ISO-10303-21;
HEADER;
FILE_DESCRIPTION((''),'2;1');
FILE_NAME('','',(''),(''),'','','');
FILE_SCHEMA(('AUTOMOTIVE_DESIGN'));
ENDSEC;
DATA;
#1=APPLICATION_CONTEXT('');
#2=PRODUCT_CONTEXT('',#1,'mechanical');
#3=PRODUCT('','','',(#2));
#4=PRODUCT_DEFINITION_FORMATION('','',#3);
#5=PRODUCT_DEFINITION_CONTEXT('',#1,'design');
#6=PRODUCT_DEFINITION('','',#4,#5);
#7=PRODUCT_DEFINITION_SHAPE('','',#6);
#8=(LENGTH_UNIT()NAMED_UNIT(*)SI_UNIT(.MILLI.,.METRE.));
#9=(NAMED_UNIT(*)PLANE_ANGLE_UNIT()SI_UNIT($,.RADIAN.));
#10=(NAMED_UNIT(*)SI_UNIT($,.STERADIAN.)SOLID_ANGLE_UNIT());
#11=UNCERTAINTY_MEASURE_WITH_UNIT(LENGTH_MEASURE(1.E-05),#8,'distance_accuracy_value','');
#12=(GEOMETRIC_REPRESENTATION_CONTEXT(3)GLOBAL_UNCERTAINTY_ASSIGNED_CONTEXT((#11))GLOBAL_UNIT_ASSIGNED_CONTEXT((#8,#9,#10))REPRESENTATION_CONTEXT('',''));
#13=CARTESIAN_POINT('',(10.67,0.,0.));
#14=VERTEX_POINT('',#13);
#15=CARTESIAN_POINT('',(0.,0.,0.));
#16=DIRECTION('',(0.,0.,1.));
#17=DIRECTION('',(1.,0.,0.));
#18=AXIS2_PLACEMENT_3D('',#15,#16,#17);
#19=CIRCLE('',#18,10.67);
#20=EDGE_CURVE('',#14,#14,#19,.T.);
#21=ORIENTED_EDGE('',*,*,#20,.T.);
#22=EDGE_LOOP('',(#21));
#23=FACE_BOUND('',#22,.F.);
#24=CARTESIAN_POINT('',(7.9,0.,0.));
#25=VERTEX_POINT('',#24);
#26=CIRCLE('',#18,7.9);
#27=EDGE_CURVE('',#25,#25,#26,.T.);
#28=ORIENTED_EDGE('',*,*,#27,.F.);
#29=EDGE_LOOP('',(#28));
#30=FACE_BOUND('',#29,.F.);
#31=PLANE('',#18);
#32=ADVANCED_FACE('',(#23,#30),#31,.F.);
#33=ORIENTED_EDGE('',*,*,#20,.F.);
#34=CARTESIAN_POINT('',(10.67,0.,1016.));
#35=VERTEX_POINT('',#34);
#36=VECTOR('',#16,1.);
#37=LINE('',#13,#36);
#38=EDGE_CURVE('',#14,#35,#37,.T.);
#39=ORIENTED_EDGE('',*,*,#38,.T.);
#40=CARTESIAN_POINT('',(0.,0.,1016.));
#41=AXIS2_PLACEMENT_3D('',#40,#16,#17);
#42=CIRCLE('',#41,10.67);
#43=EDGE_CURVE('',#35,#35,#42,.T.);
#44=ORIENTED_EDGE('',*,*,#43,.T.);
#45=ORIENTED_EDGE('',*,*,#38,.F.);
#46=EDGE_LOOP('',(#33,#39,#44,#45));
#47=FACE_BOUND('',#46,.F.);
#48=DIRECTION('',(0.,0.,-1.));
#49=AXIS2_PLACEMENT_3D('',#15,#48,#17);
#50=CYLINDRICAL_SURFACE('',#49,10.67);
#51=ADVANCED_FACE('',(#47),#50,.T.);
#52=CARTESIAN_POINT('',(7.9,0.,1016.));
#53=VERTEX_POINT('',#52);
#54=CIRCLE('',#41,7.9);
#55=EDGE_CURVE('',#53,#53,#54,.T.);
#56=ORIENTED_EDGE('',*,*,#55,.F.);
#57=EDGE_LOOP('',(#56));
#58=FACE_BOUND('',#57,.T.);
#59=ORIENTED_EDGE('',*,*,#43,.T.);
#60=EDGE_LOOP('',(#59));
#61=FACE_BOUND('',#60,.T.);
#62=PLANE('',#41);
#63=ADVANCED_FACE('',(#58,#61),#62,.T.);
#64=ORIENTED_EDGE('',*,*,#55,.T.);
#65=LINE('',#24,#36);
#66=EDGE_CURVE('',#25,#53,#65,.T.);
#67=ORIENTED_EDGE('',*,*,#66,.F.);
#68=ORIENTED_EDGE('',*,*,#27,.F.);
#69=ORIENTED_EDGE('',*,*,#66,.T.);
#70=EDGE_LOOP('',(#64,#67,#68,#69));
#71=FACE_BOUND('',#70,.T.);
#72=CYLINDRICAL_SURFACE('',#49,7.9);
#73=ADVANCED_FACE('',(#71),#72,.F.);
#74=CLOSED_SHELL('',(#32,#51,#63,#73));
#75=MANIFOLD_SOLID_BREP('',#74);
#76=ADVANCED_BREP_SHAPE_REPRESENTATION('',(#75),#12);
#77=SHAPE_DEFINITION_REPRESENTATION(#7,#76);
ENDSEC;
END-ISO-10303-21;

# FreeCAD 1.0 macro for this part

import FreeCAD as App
import Part
import Sketcher

doc = App.newDocument("Part")
body = doc.addObject("PartDesign::Body", "Body")

sketch1 = body.newObject("Sketcher::SketchObject", "Sketch")
sketch1.AttachmentSupport = (doc.getObject("XY_Plane"), [""])
sketch1.MapMode = "FlatFace"
sketch1.addGeometry(Part.Circle(App.Vector(0, 0, 0), App.Vector(0, 0, 1), 7.9), False)
sketch1.addConstraint([
    Sketcher.Constraint("Coincident", 0, 3, -1, 1),
    Sketcher.Constraint("Diameter", 0, 15.8),
])
pad1 = body.newObject("PartDesign::Pad", "Pad")
pad1.Profile = sketch1
pad1.Length = 1016
body2 = doc.addObject("PartDesign::Body", "Body001")

sketch2 = body2.newObject("Sketcher::SketchObject", "Sketch001")
sketch2.AttachmentSupport = (doc.getObject("XY_Plane001"), [""])
sketch2.MapMode = "FlatFace"
sketch2.addGeometry(Part.Circle(App.Vector(0, 0, 0), App.Vector(0, 0, 1), 10.67), False)
sketch2.addConstraint([
    Sketcher.Constraint("Coincident", 0, 3, -1, 1),
    Sketcher.Constraint("Diameter", 0, 21.34),
])
pad2 = body2.newObject("PartDesign::Pad", "Pad001")
pad2.Profile = sketch2
pad2.Length = 1016
doc.recompute()

boolean = body2.newObject("PartDesign::Boolean", "Boolean")
boolean.Type = "Cut"
boolean.addObjects([body])

doc.recompute()
